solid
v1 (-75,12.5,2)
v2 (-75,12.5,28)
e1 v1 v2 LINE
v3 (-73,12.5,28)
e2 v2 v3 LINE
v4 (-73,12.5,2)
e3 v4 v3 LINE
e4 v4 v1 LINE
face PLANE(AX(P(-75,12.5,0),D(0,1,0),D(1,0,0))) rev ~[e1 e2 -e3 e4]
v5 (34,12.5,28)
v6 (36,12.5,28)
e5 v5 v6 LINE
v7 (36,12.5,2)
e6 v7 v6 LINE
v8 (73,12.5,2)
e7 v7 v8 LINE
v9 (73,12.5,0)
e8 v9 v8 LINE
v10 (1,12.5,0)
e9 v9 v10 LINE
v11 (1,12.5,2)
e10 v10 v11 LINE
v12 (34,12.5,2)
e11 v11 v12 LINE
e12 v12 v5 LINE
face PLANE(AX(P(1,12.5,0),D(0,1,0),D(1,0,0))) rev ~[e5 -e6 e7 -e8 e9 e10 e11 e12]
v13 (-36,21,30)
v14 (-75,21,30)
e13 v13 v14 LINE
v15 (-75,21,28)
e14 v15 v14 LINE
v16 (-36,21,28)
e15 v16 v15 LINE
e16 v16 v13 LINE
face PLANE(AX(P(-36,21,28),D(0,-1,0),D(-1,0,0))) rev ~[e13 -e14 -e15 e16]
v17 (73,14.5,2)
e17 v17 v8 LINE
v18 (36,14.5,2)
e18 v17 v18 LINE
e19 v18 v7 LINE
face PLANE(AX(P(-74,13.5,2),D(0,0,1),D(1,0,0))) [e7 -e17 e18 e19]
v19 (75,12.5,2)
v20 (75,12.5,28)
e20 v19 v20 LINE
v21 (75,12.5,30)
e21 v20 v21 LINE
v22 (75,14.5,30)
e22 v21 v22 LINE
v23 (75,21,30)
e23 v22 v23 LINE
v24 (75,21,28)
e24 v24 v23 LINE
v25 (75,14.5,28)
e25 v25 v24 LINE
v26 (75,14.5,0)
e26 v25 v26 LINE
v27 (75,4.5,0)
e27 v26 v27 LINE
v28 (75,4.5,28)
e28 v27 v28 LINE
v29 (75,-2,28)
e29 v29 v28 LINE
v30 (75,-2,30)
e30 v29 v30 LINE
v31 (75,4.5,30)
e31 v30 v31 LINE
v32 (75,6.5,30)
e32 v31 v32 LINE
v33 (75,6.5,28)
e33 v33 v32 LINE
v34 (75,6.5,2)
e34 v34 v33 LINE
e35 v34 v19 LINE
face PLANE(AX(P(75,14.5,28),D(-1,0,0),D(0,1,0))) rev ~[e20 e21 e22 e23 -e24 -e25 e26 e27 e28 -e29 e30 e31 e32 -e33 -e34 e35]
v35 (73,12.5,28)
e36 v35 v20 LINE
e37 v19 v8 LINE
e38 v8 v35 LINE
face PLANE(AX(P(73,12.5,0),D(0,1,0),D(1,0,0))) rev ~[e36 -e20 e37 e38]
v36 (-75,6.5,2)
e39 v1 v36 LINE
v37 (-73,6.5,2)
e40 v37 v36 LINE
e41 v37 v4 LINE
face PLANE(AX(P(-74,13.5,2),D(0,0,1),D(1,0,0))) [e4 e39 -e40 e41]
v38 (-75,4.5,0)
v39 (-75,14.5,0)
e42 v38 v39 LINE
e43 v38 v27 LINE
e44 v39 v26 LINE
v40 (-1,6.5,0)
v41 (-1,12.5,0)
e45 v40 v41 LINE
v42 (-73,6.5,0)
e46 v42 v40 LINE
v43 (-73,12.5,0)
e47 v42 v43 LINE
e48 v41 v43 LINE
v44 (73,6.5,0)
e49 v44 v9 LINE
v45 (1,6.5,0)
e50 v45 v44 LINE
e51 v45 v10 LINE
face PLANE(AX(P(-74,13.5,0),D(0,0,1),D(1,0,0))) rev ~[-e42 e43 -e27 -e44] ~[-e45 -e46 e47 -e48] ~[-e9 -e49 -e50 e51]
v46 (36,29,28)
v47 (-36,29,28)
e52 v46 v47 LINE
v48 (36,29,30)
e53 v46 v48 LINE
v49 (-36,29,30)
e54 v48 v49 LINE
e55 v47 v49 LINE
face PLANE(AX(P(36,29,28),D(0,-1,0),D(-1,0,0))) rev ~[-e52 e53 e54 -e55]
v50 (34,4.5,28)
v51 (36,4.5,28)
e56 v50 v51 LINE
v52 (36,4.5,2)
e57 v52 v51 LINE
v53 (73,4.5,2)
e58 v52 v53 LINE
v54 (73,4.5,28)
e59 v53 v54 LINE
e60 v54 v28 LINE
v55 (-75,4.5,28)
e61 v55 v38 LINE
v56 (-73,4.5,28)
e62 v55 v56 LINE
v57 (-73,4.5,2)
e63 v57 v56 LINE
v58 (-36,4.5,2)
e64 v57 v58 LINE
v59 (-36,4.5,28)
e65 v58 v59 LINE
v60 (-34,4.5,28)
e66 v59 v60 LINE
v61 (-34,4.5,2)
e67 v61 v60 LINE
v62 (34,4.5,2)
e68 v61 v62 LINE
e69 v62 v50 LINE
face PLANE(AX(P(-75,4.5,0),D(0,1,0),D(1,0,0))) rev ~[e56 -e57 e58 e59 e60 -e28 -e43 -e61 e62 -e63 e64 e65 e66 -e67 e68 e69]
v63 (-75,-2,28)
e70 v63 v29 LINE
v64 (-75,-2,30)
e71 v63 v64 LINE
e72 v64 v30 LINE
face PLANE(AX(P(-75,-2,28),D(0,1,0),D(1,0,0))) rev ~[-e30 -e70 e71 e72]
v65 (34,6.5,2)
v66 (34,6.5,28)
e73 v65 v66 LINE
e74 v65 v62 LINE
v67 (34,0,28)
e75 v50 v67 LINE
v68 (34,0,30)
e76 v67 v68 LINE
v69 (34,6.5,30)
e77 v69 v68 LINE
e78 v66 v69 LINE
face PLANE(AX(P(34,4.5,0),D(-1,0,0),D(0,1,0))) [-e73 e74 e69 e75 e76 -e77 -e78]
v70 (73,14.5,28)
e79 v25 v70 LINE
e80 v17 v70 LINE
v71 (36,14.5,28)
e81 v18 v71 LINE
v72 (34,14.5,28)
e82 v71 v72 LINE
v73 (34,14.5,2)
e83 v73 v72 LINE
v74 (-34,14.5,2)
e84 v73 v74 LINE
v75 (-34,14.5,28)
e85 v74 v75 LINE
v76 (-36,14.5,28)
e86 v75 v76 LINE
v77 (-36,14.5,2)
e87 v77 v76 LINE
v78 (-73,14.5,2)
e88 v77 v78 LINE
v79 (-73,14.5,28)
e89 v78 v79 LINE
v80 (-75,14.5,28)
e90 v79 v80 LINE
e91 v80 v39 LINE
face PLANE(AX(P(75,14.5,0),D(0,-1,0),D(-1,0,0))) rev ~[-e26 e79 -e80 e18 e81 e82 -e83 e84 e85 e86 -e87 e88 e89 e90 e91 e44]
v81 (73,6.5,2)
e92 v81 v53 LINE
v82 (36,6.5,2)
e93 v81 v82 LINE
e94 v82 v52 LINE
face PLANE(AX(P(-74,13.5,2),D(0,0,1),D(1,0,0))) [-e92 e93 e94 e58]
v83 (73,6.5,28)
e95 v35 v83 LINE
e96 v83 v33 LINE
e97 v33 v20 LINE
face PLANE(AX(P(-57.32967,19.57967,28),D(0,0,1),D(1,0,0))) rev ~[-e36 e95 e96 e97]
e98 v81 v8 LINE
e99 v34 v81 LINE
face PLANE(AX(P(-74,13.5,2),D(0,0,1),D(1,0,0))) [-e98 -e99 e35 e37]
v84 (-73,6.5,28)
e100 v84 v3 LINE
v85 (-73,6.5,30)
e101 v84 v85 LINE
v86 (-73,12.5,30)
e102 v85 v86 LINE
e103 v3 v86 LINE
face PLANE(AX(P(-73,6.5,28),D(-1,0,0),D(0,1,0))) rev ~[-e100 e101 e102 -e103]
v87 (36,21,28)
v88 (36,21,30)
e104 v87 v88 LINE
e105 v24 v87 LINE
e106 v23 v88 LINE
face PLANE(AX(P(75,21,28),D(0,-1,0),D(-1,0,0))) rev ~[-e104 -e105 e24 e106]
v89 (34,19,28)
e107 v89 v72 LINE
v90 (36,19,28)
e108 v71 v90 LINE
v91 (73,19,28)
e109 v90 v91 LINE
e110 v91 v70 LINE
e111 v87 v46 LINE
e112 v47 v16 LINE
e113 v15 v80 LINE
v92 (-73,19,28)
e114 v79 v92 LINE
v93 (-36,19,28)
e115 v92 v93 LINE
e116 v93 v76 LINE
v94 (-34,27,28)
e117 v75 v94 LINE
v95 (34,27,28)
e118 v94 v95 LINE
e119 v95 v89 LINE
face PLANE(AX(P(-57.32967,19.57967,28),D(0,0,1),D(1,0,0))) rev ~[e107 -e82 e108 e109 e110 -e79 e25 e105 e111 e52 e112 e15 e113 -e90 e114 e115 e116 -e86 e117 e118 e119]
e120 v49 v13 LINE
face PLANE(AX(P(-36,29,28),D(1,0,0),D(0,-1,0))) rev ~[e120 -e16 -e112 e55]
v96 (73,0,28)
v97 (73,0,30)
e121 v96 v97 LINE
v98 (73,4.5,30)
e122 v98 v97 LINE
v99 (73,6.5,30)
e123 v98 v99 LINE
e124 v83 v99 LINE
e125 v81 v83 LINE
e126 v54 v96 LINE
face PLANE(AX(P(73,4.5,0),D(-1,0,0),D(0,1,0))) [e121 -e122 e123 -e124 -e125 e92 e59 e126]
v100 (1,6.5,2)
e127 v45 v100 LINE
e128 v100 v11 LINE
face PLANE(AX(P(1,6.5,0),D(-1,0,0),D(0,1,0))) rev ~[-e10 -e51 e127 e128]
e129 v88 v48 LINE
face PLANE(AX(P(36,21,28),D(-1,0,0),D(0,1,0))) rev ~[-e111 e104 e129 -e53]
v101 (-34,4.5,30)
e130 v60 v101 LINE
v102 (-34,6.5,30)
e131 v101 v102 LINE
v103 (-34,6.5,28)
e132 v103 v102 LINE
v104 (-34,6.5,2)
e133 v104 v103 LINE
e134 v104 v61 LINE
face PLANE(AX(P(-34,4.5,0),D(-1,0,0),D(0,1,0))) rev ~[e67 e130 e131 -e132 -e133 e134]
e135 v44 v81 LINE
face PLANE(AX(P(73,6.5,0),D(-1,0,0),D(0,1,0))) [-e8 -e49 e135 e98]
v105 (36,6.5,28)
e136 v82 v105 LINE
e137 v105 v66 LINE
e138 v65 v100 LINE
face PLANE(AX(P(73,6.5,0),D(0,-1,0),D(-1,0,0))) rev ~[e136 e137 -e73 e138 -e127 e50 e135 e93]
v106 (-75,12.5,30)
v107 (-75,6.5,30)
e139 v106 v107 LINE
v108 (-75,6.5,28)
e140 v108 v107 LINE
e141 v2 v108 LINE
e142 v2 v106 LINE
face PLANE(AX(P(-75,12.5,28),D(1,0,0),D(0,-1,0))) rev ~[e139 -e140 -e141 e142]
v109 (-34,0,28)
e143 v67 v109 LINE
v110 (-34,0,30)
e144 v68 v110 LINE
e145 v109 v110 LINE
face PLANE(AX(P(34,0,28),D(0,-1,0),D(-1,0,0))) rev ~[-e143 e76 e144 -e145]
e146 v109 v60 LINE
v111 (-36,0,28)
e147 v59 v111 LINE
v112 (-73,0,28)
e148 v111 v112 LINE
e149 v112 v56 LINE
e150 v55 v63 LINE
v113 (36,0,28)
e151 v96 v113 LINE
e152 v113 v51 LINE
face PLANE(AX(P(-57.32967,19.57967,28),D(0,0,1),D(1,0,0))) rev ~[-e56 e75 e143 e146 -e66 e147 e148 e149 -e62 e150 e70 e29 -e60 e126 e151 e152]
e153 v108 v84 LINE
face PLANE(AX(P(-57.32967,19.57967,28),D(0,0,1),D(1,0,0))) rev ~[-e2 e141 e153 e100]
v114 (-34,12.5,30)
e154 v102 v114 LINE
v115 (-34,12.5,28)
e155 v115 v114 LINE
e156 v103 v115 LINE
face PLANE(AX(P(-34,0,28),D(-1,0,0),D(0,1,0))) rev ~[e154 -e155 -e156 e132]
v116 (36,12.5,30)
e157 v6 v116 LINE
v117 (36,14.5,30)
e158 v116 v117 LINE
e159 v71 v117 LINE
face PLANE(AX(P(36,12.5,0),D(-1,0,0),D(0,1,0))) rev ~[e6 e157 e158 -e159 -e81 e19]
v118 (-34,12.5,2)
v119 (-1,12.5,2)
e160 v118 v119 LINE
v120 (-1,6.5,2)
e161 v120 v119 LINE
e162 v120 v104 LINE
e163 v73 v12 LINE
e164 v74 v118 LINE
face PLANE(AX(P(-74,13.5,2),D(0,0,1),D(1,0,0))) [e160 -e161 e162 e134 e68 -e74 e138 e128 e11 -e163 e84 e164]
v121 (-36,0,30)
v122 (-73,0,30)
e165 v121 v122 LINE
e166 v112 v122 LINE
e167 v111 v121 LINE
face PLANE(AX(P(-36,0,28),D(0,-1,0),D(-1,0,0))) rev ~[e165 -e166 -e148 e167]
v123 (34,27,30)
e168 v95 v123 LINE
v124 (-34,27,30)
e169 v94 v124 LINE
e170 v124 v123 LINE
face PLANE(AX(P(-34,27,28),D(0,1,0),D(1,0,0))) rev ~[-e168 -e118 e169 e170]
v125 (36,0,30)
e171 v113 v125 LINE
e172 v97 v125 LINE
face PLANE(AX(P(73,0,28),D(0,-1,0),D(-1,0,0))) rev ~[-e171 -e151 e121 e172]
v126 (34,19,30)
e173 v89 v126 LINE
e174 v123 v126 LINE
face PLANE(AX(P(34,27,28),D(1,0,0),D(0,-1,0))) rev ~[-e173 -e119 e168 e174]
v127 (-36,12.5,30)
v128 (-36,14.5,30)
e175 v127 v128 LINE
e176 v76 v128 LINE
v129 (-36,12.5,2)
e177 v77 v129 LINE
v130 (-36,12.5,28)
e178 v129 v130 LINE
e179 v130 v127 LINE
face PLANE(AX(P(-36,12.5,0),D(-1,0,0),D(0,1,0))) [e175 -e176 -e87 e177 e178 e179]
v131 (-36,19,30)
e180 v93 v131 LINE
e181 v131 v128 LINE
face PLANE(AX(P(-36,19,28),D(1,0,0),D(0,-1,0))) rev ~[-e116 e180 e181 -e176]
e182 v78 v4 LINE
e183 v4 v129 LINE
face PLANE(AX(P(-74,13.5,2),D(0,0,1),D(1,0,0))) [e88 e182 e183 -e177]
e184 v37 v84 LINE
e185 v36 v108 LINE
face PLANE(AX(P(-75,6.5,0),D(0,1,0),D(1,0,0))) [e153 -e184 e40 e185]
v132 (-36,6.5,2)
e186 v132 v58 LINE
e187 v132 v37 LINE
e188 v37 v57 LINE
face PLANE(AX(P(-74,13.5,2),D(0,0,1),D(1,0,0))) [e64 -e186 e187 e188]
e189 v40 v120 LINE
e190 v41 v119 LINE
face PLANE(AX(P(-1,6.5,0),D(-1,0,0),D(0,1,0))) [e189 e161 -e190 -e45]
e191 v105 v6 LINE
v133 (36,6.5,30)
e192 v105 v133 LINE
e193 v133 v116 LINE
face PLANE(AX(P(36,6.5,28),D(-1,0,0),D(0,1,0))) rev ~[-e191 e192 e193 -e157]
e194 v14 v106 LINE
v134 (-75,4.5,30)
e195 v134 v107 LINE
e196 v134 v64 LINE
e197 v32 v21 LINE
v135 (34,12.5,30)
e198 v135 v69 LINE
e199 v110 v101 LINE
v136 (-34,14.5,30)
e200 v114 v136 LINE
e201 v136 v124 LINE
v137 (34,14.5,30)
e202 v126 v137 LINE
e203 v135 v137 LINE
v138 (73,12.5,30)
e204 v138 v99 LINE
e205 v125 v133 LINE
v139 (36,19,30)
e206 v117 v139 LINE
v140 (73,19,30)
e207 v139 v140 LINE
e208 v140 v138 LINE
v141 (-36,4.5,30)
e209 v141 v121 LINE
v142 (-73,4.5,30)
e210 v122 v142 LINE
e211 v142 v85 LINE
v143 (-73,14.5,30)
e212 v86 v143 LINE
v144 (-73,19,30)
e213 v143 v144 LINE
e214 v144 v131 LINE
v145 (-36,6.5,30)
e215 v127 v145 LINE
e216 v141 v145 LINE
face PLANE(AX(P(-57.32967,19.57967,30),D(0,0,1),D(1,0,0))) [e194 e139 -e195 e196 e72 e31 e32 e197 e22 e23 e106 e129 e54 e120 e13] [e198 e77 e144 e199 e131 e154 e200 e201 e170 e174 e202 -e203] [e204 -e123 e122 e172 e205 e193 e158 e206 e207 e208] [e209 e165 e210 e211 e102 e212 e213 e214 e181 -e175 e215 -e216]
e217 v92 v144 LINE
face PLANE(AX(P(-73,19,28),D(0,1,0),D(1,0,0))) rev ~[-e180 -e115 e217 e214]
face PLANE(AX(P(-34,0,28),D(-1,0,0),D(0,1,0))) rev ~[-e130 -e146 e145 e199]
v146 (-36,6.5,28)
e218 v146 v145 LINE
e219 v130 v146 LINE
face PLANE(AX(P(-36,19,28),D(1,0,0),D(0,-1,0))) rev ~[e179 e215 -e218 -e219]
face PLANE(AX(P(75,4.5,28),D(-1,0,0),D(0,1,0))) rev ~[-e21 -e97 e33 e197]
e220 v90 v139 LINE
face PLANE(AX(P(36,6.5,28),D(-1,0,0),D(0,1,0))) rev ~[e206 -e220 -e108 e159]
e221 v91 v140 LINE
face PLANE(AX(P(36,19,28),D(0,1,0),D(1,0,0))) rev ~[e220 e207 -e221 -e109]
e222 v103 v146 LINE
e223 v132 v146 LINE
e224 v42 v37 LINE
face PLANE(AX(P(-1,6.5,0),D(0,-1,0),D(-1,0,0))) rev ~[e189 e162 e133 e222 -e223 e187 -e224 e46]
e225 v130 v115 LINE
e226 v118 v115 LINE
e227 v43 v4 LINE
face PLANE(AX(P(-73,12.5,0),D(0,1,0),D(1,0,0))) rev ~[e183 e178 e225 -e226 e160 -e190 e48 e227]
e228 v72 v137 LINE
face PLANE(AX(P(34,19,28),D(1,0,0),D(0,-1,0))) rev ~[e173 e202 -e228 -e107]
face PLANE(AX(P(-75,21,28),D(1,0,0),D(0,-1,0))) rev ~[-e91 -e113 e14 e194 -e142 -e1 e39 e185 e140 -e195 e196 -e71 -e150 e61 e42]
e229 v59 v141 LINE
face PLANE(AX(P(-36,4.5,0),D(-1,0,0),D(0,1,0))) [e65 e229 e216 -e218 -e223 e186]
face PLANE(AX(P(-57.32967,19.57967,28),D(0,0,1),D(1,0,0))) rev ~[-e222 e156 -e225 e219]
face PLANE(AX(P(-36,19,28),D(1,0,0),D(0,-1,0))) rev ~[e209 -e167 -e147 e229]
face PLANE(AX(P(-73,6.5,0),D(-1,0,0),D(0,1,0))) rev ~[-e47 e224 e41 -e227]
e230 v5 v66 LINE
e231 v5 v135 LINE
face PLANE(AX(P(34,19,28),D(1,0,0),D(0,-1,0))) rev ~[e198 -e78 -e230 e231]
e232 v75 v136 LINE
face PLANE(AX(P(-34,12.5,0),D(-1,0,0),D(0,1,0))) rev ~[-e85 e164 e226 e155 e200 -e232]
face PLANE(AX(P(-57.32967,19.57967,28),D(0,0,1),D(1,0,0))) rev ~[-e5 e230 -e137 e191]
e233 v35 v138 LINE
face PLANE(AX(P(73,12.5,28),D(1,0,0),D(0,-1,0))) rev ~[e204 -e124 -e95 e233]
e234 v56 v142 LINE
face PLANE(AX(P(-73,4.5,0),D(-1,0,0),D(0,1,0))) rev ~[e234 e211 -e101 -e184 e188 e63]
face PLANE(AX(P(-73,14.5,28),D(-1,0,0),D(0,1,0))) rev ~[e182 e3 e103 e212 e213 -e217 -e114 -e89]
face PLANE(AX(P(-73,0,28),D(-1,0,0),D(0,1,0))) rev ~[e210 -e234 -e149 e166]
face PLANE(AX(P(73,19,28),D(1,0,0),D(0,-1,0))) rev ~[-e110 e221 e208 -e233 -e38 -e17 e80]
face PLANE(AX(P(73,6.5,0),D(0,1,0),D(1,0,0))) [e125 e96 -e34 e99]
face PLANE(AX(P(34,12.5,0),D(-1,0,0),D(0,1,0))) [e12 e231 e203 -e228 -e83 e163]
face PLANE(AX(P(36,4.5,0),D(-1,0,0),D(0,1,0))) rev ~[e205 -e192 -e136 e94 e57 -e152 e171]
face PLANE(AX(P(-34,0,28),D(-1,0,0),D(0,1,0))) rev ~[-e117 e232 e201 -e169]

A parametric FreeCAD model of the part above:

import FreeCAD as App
import Part
import Sketcher
from FreeCAD import Vector

doc = App.newDocument("Part")
params = doc.addObject("Spreadsheet::Sheet", "Params")
for row, (alias, value) in enumerate([
    ("sketch1_width", "149.999999 mm"),
    ("sketch1_width2", "72 mm"),
    ("sketch1_height", "10 mm"),
    ("sketch1_height2", "6 mm"),
    ("pad1_length", "2 mm"),
    ("sketch2_width", "2 mm"),
    ("pad2_length", "30 mm"),
    ("sketch3_width", "39 mm"),
    ("sketch3_width2", "71.999999 mm"),
    ("sketch3_width3", "37 mm"),
    ("sketch3_width4", "68 mm"),
    ("sketch3_height", "8 mm"),
    ("pad3_length", "2 mm"),
], start=1):
    params.set(f"A{row}", alias)
    params.set(f"B{row}", "=" + value)
    params.setAlias(f"B{row}", alias)

body = doc.addObject("PartDesign::Body", "Body")

sketch1 = body.newObject("Sketcher::SketchObject", "Sketch")
sketch1.AttachmentSupport = (doc.getObject("XY_Plane"), [""])
sketch1.MapMode = "FlatFace"
sketch1.addGeometry(Part.LineSegment(Vector(-75, 4.5, 0), Vector(75, 4.5, 0)), False)
sketch1.addGeometry(Part.LineSegment(Vector(75, 4.5, 0), Vector(75, 14.5, 0)), False)
sketch1.addGeometry(Part.LineSegment(Vector(75, 14.5, 0), Vector(-75, 14.5, 0)), False)
sketch1.addGeometry(Part.LineSegment(Vector(-75, 14.5, 0), Vector(-75, 4.5, 0)), False)
sketch1.addGeometry(Part.LineSegment(Vector(-1, 6.5, 0), Vector(-73, 6.5, 0)), False)
sketch1.addGeometry(Part.LineSegment(Vector(-73, 6.5, 0), Vector(-73, 12.5, 0)), False)
sketch1.addGeometry(Part.LineSegment(Vector(-73, 12.5, 0), Vector(-1, 12.5, 0)), False)
sketch1.addGeometry(Part.LineSegment(Vector(-1, 12.5, 0), Vector(-1, 6.5, 0)), False)
sketch1.addGeometry(Part.LineSegment(Vector(73, 12.5, 0), Vector(73, 6.5, 0)), False)
sketch1.addGeometry(Part.LineSegment(Vector(73, 6.5, 0), Vector(1, 6.5, 0)), False)
sketch1.addGeometry(Part.LineSegment(Vector(1, 6.5, 0), Vector(1, 12.5, 0)), False)
sketch1.addGeometry(Part.LineSegment(Vector(1, 12.5, 0), Vector(73, 12.5, 0)), False)
sketch1.addConstraint(Sketcher.Constraint("Coincident", 0, 2, 1, 1))
sketch1.addConstraint(Sketcher.Constraint("Coincident", 1, 2, 2, 1))
sketch1.addConstraint(Sketcher.Constraint("Coincident", 2, 2, 3, 1))
sketch1.addConstraint(Sketcher.Constraint("Coincident", 3, 2, 0, 1))
sketch1.addConstraint(Sketcher.Constraint("Coincident", 4, 2, 5, 1))
sketch1.addConstraint(Sketcher.Constraint("Coincident", 5, 2, 6, 1))
sketch1.addConstraint(Sketcher.Constraint("Coincident", 6, 2, 7, 1))
sketch1.addConstraint(Sketcher.Constraint("Coincident", 7, 2, 4, 1))
sketch1.addConstraint(Sketcher.Constraint("Coincident", 8, 2, 9, 1))
sketch1.addConstraint(Sketcher.Constraint("Coincident", 9, 2, 10, 1))
sketch1.addConstraint(Sketcher.Constraint("Coincident", 10, 2, 11, 1))
sketch1.addConstraint(Sketcher.Constraint("Coincident", 11, 2, 8, 1))
sketch1.addConstraint(Sketcher.Constraint("Horizontal", 0))
sketch1.addConstraint(Sketcher.Constraint("Vertical", 1))
sketch1.addConstraint(Sketcher.Constraint("Horizontal", 2))
sketch1.addConstraint(Sketcher.Constraint("Vertical", 3))
sketch1.addConstraint(Sketcher.Constraint("Horizontal", 4))
sketch1.addConstraint(Sketcher.Constraint("Vertical", 5))
sketch1.addConstraint(Sketcher.Constraint("Horizontal", 6))
sketch1.addConstraint(Sketcher.Constraint("Vertical", 7))
sketch1.addConstraint(Sketcher.Constraint("Vertical", 8))
sketch1.addConstraint(Sketcher.Constraint("Horizontal", 9))
sketch1.addConstraint(Sketcher.Constraint("Vertical", 10))
sketch1.addConstraint(Sketcher.Constraint("Horizontal", 11))
sketch1.addConstraint(Sketcher.Constraint("Symmetric", 4, 2, 8, 2, -2))
sketch1.addConstraint(Sketcher.Constraint("Symmetric", 6, 2, 10, 2, -2))
sketch1.addConstraint(Sketcher.Constraint("DistanceX", 0, 1, 0, 2, 149.999999))
sketch1.addConstraint(Sketcher.Constraint("DistanceX", 4, 2, 4, 1, 72.0))
sketch1.addConstraint(Sketcher.Constraint("DistanceY", 1, 1, 1, 2, 10.0))
sketch1.addConstraint(Sketcher.Constraint("DistanceY", 5, 1, 5, 2, 6.0))
sketch1.addConstraint(Sketcher.Constraint("DistanceX", -1, 1, 0, 2, 75.0))
sketch1.addConstraint(Sketcher.Constraint("DistanceX", 4, 2, -1, 1, 73.0))
sketch1.addConstraint(Sketcher.Constraint("DistanceY", 3, 2, 4, 2, 2.0))
sketch1.addConstraint(Sketcher.Constraint("DistanceY", -1, 1, 0, 2, 4.5))
sketch1.setExpression("Constraints[26]", "Params.sketch1_width")
sketch1.setExpression("Constraints[27]", "Params.sketch1_width2")
sketch1.setExpression("Constraints[28]", "Params.sketch1_height")
sketch1.setExpression("Constraints[29]", "Params.sketch1_height2")
pad1 = body.newObject("PartDesign::Pad", "Pad")
pad1.Profile = sketch1
pad1.setExpression("Length", "Params.pad1_length")

sketch2 = body.newObject("Sketcher::SketchObject", "Sketch001")
sketch2.AttachmentSupport = (doc.getObject("XY_Plane"), [""])
sketch2.MapMode = "FlatFace"
sketch2.addGeometry(Part.LineSegment(Vector(-75, 6.5, 0), Vector(-75, 4.5, 0)), False)
sketch2.addGeometry(Part.LineSegment(Vector(-75, 4.5, 0), Vector(-73, 4.5, 0)), False)
sketch2.addGeometry(Part.LineSegment(Vector(-73, 4.5, 0), Vector(-73, 6.5, 0)), False)
sketch2.addGeometry(Part.LineSegment(Vector(-73, 6.5, 0), Vector(-75, 6.5, 0)), False)
sketch2.addGeometry(Part.LineSegment(Vector(-75, 14.5, 0), Vector(-75, 12.5, 0)), False)
sketch2.addGeometry(Part.LineSegment(Vector(-75, 12.5, 0), Vector(-73, 12.5, 0)), False)
sketch2.addGeometry(Part.LineSegment(Vector(-73, 12.5, 0), Vector(-73, 14.5, 0)), False)
sketch2.addGeometry(Part.LineSegment(Vector(-73, 14.5, 0), Vector(-75, 14.5, 0)), False)
sketch2.addGeometry(Part.LineSegment(Vector(-36, 6.5, 0), Vector(-36, 4.5, 0)), False)
sketch2.addGeometry(Part.LineSegment(Vector(-36, 4.5, 0), Vector(-34, 4.5, 0)), False)
sketch2.addGeometry(Part.LineSegment(Vector(-34, 4.5, 0), Vector(-34, 6.5, 0)), False)
sketch2.addGeometry(Part.LineSegment(Vector(-34, 6.5, 0), Vector(-36, 6.5, 0)), False)
sketch2.addGeometry(Part.LineSegment(Vector(-36, 14.5, 0), Vector(-36, 12.5, 0)), False)
sketch2.addGeometry(Part.LineSegment(Vector(-36, 12.5, 0), Vector(-34, 12.5, 0)), False)
sketch2.addGeometry(Part.LineSegment(Vector(-34, 12.5, 0), Vector(-34, 14.5, 0)), False)
sketch2.addGeometry(Part.LineSegment(Vector(-34, 14.5, 0), Vector(-36, 14.5, 0)), False)
sketch2.addGeometry(Part.LineSegment(Vector(34, 6.5, 0), Vector(34, 4.5, 0)), False)
sketch2.addGeometry(Part.LineSegment(Vector(34, 4.5, 0), Vector(36, 4.5, 0)), False)
sketch2.addGeometry(Part.LineSegment(Vector(36, 4.5, 0), Vector(36, 6.5, 0)), False)
sketch2.addGeometry(Part.LineSegment(Vector(36, 6.5, 0), Vector(34, 6.5, 0)), False)
sketch2.addGeometry(Part.LineSegment(Vector(34, 14.5, 0), Vector(34, 12.5, 0)), False)
sketch2.addGeometry(Part.LineSegment(Vector(34, 12.5, 0), Vector(36, 12.5, 0)), False)
sketch2.addGeometry(Part.LineSegment(Vector(36, 12.5, 0), Vector(36, 14.5, 0)), False)
sketch2.addGeometry(Part.LineSegment(Vector(36, 14.5, 0), Vector(34, 14.5, 0)), False)
sketch2.addGeometry(Part.LineSegment(Vector(73, 6.5, 0), Vector(73, 4.5, 0)), False)
sketch2.addGeometry(Part.LineSegment(Vector(73, 4.5, 0), Vector(75, 4.5, 0)), False)
sketch2.addGeometry(Part.LineSegment(Vector(75, 4.5, 0), Vector(75, 6.5, 0)), False)
sketch2.addGeometry(Part.LineSegment(Vector(75, 6.5, 0), Vector(73, 6.5, 0)), False)
sketch2.addGeometry(Part.LineSegment(Vector(73, 14.5, 0), Vector(73, 12.5, 0)), False)
sketch2.addGeometry(Part.LineSegment(Vector(73, 12.5, 0), Vector(75, 12.5, 0)), False)
sketch2.addGeometry(Part.LineSegment(Vector(75, 12.5, 0), Vector(75, 14.5, 0)), False)
sketch2.addGeometry(Part.LineSegment(Vector(75, 14.5, 0), Vector(73, 14.5, 0)), False)
sketch2.addConstraint(Sketcher.Constraint("Coincident", 0, 2, 1, 1))
sketch2.addConstraint(Sketcher.Constraint("Coincident", 1, 2, 2, 1))
sketch2.addConstraint(Sketcher.Constraint("Coincident", 2, 2, 3, 1))
sketch2.addConstraint(Sketcher.Constraint("Coincident", 3, 2, 0, 1))
sketch2.addConstraint(Sketcher.Constraint("Coincident", 4, 2, 5, 1))
sketch2.addConstraint(Sketcher.Constraint("Coincident", 5, 2, 6, 1))
sketch2.addConstraint(Sketcher.Constraint("Coincident", 6, 2, 7, 1))
sketch2.addConstraint(Sketcher.Constraint("Coincident", 7, 2, 4, 1))
sketch2.addConstraint(Sketcher.Constraint("Coincident", 8, 2, 9, 1))
sketch2.addConstraint(Sketcher.Constraint("Coincident", 9, 2, 10, 1))
sketch2.addConstraint(Sketcher.Constraint("Coincident", 10, 2, 11, 1))
sketch2.addConstraint(Sketcher.Constraint("Coincident", 11, 2, 8, 1))
sketch2.addConstraint(Sketcher.Constraint("Coincident", 12, 2, 13, 1))
sketch2.addConstraint(Sketcher.Constraint("Coincident", 13, 2, 14, 1))
sketch2.addConstraint(Sketcher.Constraint("Coincident", 14, 2, 15, 1))
sketch2.addConstraint(Sketcher.Constraint("Coincident", 15, 2, 12, 1))
sketch2.addConstraint(Sketcher.Constraint("Coincident", 16, 2, 17, 1))
sketch2.addConstraint(Sketcher.Constraint("Coincident", 17, 2, 18, 1))
sketch2.addConstraint(Sketcher.Constraint("Coincident", 18, 2, 19, 1))
sketch2.addConstraint(Sketcher.Constraint("Coincident", 19, 2, 16, 1))
sketch2.addConstraint(Sketcher.Constraint("Coincident", 20, 2, 21, 1))
sketch2.addConstraint(Sketcher.Constraint("Coincident", 21, 2, 22, 1))
sketch2.addConstraint(Sketcher.Constraint("Coincident", 22, 2, 23, 1))
sketch2.addConstraint(Sketcher.Constraint("Coincident", 23, 2, 20, 1))
sketch2.addConstraint(Sketcher.Constraint("Coincident", 24, 2, 25, 1))
sketch2.addConstraint(Sketcher.Constraint("Coincident", 25, 2, 26, 1))
sketch2.addConstraint(Sketcher.Constraint("Coincident", 26, 2, 27, 1))
sketch2.addConstraint(Sketcher.Constraint("Coincident", 27, 2, 24, 1))
sketch2.addConstraint(Sketcher.Constraint("Coincident", 28, 2, 29, 1))
sketch2.addConstraint(Sketcher.Constraint("Coincident", 29, 2, 30, 1))
sketch2.addConstraint(Sketcher.Constraint("Coincident", 30, 2, 31, 1))
sketch2.addConstraint(Sketcher.Constraint("Coincident", 31, 2, 28, 1))
sketch2.addConstraint(Sketcher.Constraint("Vertical", 0))
sketch2.addConstraint(Sketcher.Constraint("Horizontal", 1))
sketch2.addConstraint(Sketcher.Constraint("Vertical", 2))
sketch2.addConstraint(Sketcher.Constraint("Horizontal", 3))
sketch2.addConstraint(Sketcher.Constraint("Vertical", 4))
sketch2.addConstraint(Sketcher.Constraint("Horizontal", 5))
sketch2.addConstraint(Sketcher.Constraint("Vertical", 6))
sketch2.addConstraint(Sketcher.Constraint("Horizontal", 7))
sketch2.addConstraint(Sketcher.Constraint("Vertical", 8))
sketch2.addConstraint(Sketcher.Constraint("Horizontal", 9))
sketch2.addConstraint(Sketcher.Constraint("Vertical", 10))
sketch2.addConstraint(Sketcher.Constraint("Horizontal", 11))
sketch2.addConstraint(Sketcher.Constraint("Vertical", 12))
sketch2.addConstraint(Sketcher.Constraint("Horizontal", 13))
sketch2.addConstraint(Sketcher.Constraint("Vertical", 14))
sketch2.addConstraint(Sketcher.Constraint("Horizontal", 15))
sketch2.addConstraint(Sketcher.Constraint("Vertical", 16))
sketch2.addConstraint(Sketcher.Constraint("Horizontal", 17))
sketch2.addConstraint(Sketcher.Constraint("Vertical", 18))
sketch2.addConstraint(Sketcher.Constraint("Horizontal", 19))
sketch2.addConstraint(Sketcher.Constraint("Vertical", 20))
sketch2.addConstraint(Sketcher.Constraint("Horizontal", 21))
sketch2.addConstraint(Sketcher.Constraint("Vertical", 22))
sketch2.addConstraint(Sketcher.Constraint("Horizontal", 23))
sketch2.addConstraint(Sketcher.Constraint("Vertical", 24))
sketch2.addConstraint(Sketcher.Constraint("Horizontal", 25))
sketch2.addConstraint(Sketcher.Constraint("Vertical", 26))
sketch2.addConstraint(Sketcher.Constraint("Horizontal", 27))
sketch2.addConstraint(Sketcher.Constraint("Vertical", 28))
sketch2.addConstraint(Sketcher.Constraint("Horizontal", 29))
sketch2.addConstraint(Sketcher.Constraint("Vertical", 30))
sketch2.addConstraint(Sketcher.Constraint("Horizontal", 31))
sketch2.addConstraint(Sketcher.Constraint("Symmetric", 9, 2, 16, 2, -2))
sketch2.addConstraint(Sketcher.Constraint("Symmetric", 11, 2, 18, 2, -2))
sketch2.addConstraint(Sketcher.Constraint("Symmetric", 13, 2, 20, 2, -2))
sketch2.addConstraint(Sketcher.Constraint("Symmetric", 15, 2, 22, 2, -2))
sketch2.addConstraint(Sketcher.Constraint("Symmetric", 1, 2, 24, 2, -2))
sketch2.addConstraint(Sketcher.Constraint("Symmetric", 3, 2, 26, 2, -2))
sketch2.addConstraint(Sketcher.Constraint("Symmetric", 5, 2, 28, 2, -2))
sketch2.addConstraint(Sketcher.Constraint("Symmetric", 7, 2, 30, 2, -2))
sketch2.addConstraint(Sketcher.Constraint("Horizontal", 1, 2, 8, 2))
sketch2.addConstraint(Sketcher.Constraint("Horizontal", 3, 2, 10, 2))
sketch2.addConstraint(Sketcher.Constraint("Horizontal", 5, 2, 12, 2))
sketch2.addConstraint(Sketcher.Constraint("Horizontal", 7, 2, 14, 2))
sketch2.addConstraint(Sketcher.Constraint("Vertical", 3, 2, 4, 2))
sketch2.addConstraint(Sketcher.Constraint("Vertical", 2, 2, 5, 2))
sketch2.addConstraint(Sketcher.Constraint("Vertical", 11, 2, 12, 2))
sketch2.addConstraint(Sketcher.Constraint("Vertical", 10, 2, 13, 2))
sketch2.addConstraint(Sketcher.Constraint("Equal", 7, 9))
sketch2.addConstraint(Sketcher.Constraint("Equal", 31, 0))
sketch2.addConstraint(Sketcher.Constraint("Equal", 2, 4))
sketch2.addConstraint(Sketcher.Constraint("DistanceX", 1, 1, 1, 2, 2.0))
sketch2.addConstraint(Sketcher.Constraint("DistanceX", 0, 2, -1, 1, 75.0))
sketch2.addConstraint(Sketcher.Constraint("DistanceX", 8, 2, -1, 1, 36.0))
sketch2.addConstraint(Sketcher.Constraint("DistanceY", 3, 2, 4, 2, 6.0))
sketch2.addConstraint(Sketcher.Constraint("DistanceY", -1, 1, 0, 2, 4.5))
sketch2.setExpression("Constraints[83]", "Params.sketch2_width")
pad2 = body.newObject("PartDesign::Pad", "Pad001")
pad2.Profile = sketch2
pad2.setExpression("Length", "Params.pad2_length")

sketch3 = body.newObject("Sketcher::SketchObject", "Sketch002")
sketch3.AttachmentSupport = (doc.getObject("XY_Plane"), [""])
sketch3.MapMode = "FlatFace"
sketch3.AttachmentOffset = App.Placement(Vector(0, 0, 28), App.Rotation())
sketch3.addGeometry(Part.LineSegment(Vector(75, 14.5, 0), Vector(75, 21, 0)), False)
sketch3.addGeometry(Part.LineSegment(Vector(75, 21, 0), Vector(36, 21, 0)), False)
sketch3.addGeometry(Part.LineSegment(Vector(36, 21, 0), Vector(36, 29, 0)), False)
sketch3.addGeometry(Part.LineSegment(Vector(36, 29, 0), Vector(-36, 29, 0)), False)
sketch3.addGeometry(Part.LineSegment(Vector(-36, 29, 0), Vector(-36, 21, 0)), False)
sketch3.addGeometry(Part.LineSegment(Vector(-36, 21, 0), Vector(-75, 21, 0)), False)
sketch3.addGeometry(Part.LineSegment(Vector(-75, 21, 0), Vector(-75, 14.5, 0)), False)
sketch3.addGeometry(Part.LineSegment(Vector(-75, 14.5, 0), Vector(-75, 12.5, 0)), False)
sketch3.addGeometry(Part.LineSegment(Vector(-75, 12.5, 0), Vector(-75, 4.5, 0)), False)
sketch3.addGeometry(Part.LineSegment(Vector(-75, 4.5, 0), Vector(-75, -2, 0)), False)
sketch3.addGeometry(Part.LineSegment(Vector(-75, -2, 0), Vector(75, -2, 0)), False)
sketch3.addGeometry(Part.LineSegment(Vector(75, -2, 0), Vector(75, 4.5, 0)), False)
sketch3.addGeometry(Part.LineSegment(Vector(75, 4.5, 0), Vector(75, 12.5, 0)), False)
sketch3.addGeometry(Part.LineSegment(Vector(75, 12.5, 0), Vector(75, 14.5, 0)), False)
sketch3.addGeometry(Part.LineSegment(Vector(-73, 14.5, 0), Vector(-73, 19, 0)), False)
sketch3.addGeometry(Part.LineSegment(Vector(-73, 19, 0), Vector(-36, 19, 0)), False)
sketch3.addGeometry(Part.LineSegment(Vector(-36, 19, 0), Vector(-36, 0, 0)), False)
sketch3.addGeometry(Part.LineSegment(Vector(-36, 0, 0), Vector(-73, 0, 0)), False)
sketch3.addGeometry(Part.LineSegment(Vector(-73, 0, 0), Vector(-73, 6.5, 0)), False)
sketch3.addGeometry(Part.LineSegment(Vector(-73, 6.5, 0), Vector(-73, 14.5, 0)), False)
sketch3.addGeometry(Part.LineSegment(Vector(-34, 27, 0), Vector(34, 27, 0)), False)
sketch3.addGeometry(Part.LineSegment(Vector(34, 27, 0), Vector(34, 19, 0)), False)
sketch3.addGeometry(Part.LineSegment(Vector(34, 19, 0), Vector(34, 6.5, 0)), False)
sketch3.addGeometry(Part.LineSegment(Vector(34, 6.5, 0), Vector(34, 0, 0)), False)
sketch3.addGeometry(Part.LineSegment(Vector(34, 0, 0), Vector(-34, 0, 0)), False)
sketch3.addGeometry(Part.LineSegment(Vector(-34, 0, 0), Vector(-34, 27, 0)), False)
sketch3.addGeometry(Part.LineSegment(Vector(36, 6.5, 0), Vector(36, 19, 0)), False)
sketch3.addGeometry(Part.LineSegment(Vector(36, 19, 0), Vector(73, 19, 0)), False)
sketch3.addGeometry(Part.LineSegment(Vector(73, 19, 0), Vector(73, 14.5, 0)), False)
sketch3.addGeometry(Part.LineSegment(Vector(73, 14.5, 0), Vector(73, 12.5, 0)), False)
sketch3.addGeometry(Part.LineSegment(Vector(73, 12.5, 0), Vector(73, 4.5, 0)), False)
sketch3.addGeometry(Part.LineSegment(Vector(73, 4.5, 0), Vector(73, 0, 0)), False)
sketch3.addGeometry(Part.LineSegment(Vector(73, 0, 0), Vector(36, 0, 0)), False)
sketch3.addGeometry(Part.LineSegment(Vector(36, 0, 0), Vector(36, 6.5, 0)), False)
sketch3.addConstraint(Sketcher.Constraint("Coincident", 0, 2, 1, 1))
sketch3.addConstraint(Sketcher.Constraint("Coincident", 1, 2, 2, 1))
sketch3.addConstraint(Sketcher.Constraint("Coincident", 2, 2, 3, 1))
sketch3.addConstraint(Sketcher.Constraint("Coincident", 3, 2, 4, 1))
sketch3.addConstraint(Sketcher.Constraint("Coincident", 4, 2, 5, 1))
sketch3.addConstraint(Sketcher.Constraint("Coincident", 5, 2, 6, 1))
sketch3.addConstraint(Sketcher.Constraint("Coincident", 6, 2, 7, 1))
sketch3.addConstraint(Sketcher.Constraint("Coincident", 7, 2, 8, 1))
sketch3.addConstraint(Sketcher.Constraint("Coincident", 8, 2, 9, 1))
sketch3.addConstraint(Sketcher.Constraint("Coincident", 9, 2, 10, 1))
sketch3.addConstraint(Sketcher.Constraint("Coincident", 10, 2, 11, 1))
sketch3.addConstraint(Sketcher.Constraint("Coincident", 11, 2, 12, 1))
sketch3.addConstraint(Sketcher.Constraint("Coincident", 12, 2, 13, 1))
sketch3.addConstraint(Sketcher.Constraint("Coincident", 13, 2, 0, 1))
sketch3.addConstraint(Sketcher.Constraint("Coincident", 14, 2, 15, 1))
sketch3.addConstraint(Sketcher.Constraint("Coincident", 15, 2, 16, 1))
sketch3.addConstraint(Sketcher.Constraint("Coincident", 16, 2, 17, 1))
sketch3.addConstraint(Sketcher.Constraint("Coincident", 17, 2, 18, 1))
sketch3.addConstraint(Sketcher.Constraint("Coincident", 18, 2, 19, 1))
sketch3.addConstraint(Sketcher.Constraint("Coincident", 19, 2, 14, 1))
sketch3.addConstraint(Sketcher.Constraint("Coincident", 20, 2, 21, 1))
sketch3.addConstraint(Sketcher.Constraint("Coincident", 21, 2, 22, 1))
sketch3.addConstraint(Sketcher.Constraint("Coincident", 22, 2, 23, 1))
sketch3.addConstraint(Sketcher.Constraint("Coincident", 23, 2, 24, 1))
sketch3.addConstraint(Sketcher.Constraint("Coincident", 24, 2, 25, 1))
sketch3.addConstraint(Sketcher.Constraint("Coincident", 25, 2, 20, 1))
sketch3.addConstraint(Sketcher.Constraint("Coincident", 26, 2, 27, 1))
sketch3.addConstraint(Sketcher.Constraint("Coincident", 27, 2, 28, 1))
sketch3.addConstraint(Sketcher.Constraint("Coincident", 28, 2, 29, 1))
sketch3.addConstraint(Sketcher.Constraint("Coincident", 29, 2, 30, 1))
sketch3.addConstraint(Sketcher.Constraint("Coincident", 30, 2, 31, 1))
sketch3.addConstraint(Sketcher.Constraint("Coincident", 31, 2, 32, 1))
sketch3.addConstraint(Sketcher.Constraint("Coincident", 32, 2, 33, 1))
sketch3.addConstraint(Sketcher.Constraint("Coincident", 33, 2, 26, 1))
sketch3.addConstraint(Sketcher.Constraint("Vertical", 0))
sketch3.addConstraint(Sketcher.Constraint("Horizontal", 1))
sketch3.addConstraint(Sketcher.Constraint("Vertical", 2))
sketch3.addConstraint(Sketcher.Constraint("Horizontal", 3))
sketch3.addConstraint(Sketcher.Constraint("Vertical", 4))
sketch3.addConstraint(Sketcher.Constraint("Horizontal", 5))
sketch3.addConstraint(Sketcher.Constraint("Vertical", 6))
sketch3.addConstraint(Sketcher.Constraint("Vertical", 7))
sketch3.addConstraint(Sketcher.Constraint("Vertical", 8))
sketch3.addConstraint(Sketcher.Constraint("Vertical", 9))
sketch3.addConstraint(Sketcher.Constraint("Horizontal", 10))
sketch3.addConstraint(Sketcher.Constraint("Vertical", 11))
sketch3.addConstraint(Sketcher.Constraint("Vertical", 12))
sketch3.addConstraint(Sketcher.Constraint("Vertical", 13))
sketch3.addConstraint(Sketcher.Constraint("Vertical", 14))
sketch3.addConstraint(Sketcher.Constraint("Horizontal", 15))
sketch3.addConstraint(Sketcher.Constraint("Vertical", 16))
sketch3.addConstraint(Sketcher.Constraint("Horizontal", 17))
sketch3.addConstraint(Sketcher.Constraint("Vertical", 18))
sketch3.addConstraint(Sketcher.Constraint("Vertical", 19))
sketch3.addConstraint(Sketcher.Constraint("Horizontal", 20))
sketch3.addConstraint(Sketcher.Constraint("Vertical", 21))
sketch3.addConstraint(Sketcher.Constraint("Vertical", 22))
sketch3.addConstraint(Sketcher.Constraint("Vertical", 23))
sketch3.addConstraint(Sketcher.Constraint("Horizontal", 24))
sketch3.addConstraint(Sketcher.Constraint("Vertical", 25))
sketch3.addConstraint(Sketcher.Constraint("Vertical", 26))
sketch3.addConstraint(Sketcher.Constraint("Horizontal", 27))
sketch3.addConstraint(Sketcher.Constraint("Vertical", 28))
sketch3.addConstraint(Sketcher.Constraint("Vertical", 29))
sketch3.addConstraint(Sketcher.Constraint("Vertical", 30))
sketch3.addConstraint(Sketcher.Constraint("Vertical", 31))
sketch3.addConstraint(Sketcher.Constraint("Horizontal", 32))
sketch3.addConstraint(Sketcher.Constraint("Vertical", 33))
sketch3.addConstraint(Sketcher.Constraint("Symmetric", 23, 2, 24, 2, -1, 1))
sketch3.addConstraint(Sketcher.Constraint("Symmetric", 17, 2, 31, 2, -1, 1))
sketch3.addConstraint(Sketcher.Constraint("Symmetric", 1, 2, 4, 2, -2))
sketch3.addConstraint(Sketcher.Constraint("Symmetric", 8, 2, 11, 2, -2))
sketch3.addConstraint(Sketcher.Constraint("Symmetric", 15, 2, 26, 2, -2))
sketch3.addConstraint(Sketcher.Constraint("PointOnObject", 16, 2, -1))
sketch3.addConstraint(Sketcher.Constraint("Horizontal", 7, 2, 12, 2))
sketch3.addConstraint(Sketcher.Constraint("Horizontal", 6, 2, 13, 2))
sketch3.addConstraint(Sketcher.Constraint("Horizontal", 13, 2, 19, 2))
sketch3.addConstraint(Sketcher.Constraint("Horizontal", 15, 2, 21, 2))
sketch3.addConstraint(Sketcher.Constraint("Horizontal", 18, 2, 22, 2))
sketch3.addConstraint(Sketcher.Constraint("Horizontal", 19, 2, 28, 2))
sketch3.addConstraint(Sketcher.Constraint("Horizontal", 12, 2, 29, 2))
sketch3.addConstraint(Sketcher.Constraint("Horizontal", 11, 2, 30, 2))
sketch3.addConstraint(Sketcher.Constraint("Horizontal", 22, 2, 33, 2))
sketch3.addConstraint(Sketcher.Constraint("Vertical", 4, 2, 15, 2))
sketch3.addConstraint(Sketcher.Constraint("Equal", 4, 8))
sketch3.addConstraint(Sketcher.Constraint("Equal", 6, 9))
sketch3.addConstraint(Sketcher.Constraint("Equal", 11, 18))
sketch3.addConstraint(Sketcher.Constraint("Equal", 12, 19))
sketch3.addConstraint(Sketcher.Constraint("Equal", 19, 21))
sketch3.addConstraint(Sketcher.Constraint("Equal", 28, 31))
sketch3.addConstraint(Sketcher.Constraint("DistanceX", 1, 2, 1, 1, 39.0))
sketch3.addConstraint(Sketcher.Constraint("DistanceX", 3, 2, 3, 1, 71.999999))
sketch3.addConstraint(Sketcher.Constraint("DistanceX", 15, 1, 15, 2, 37.0))
sketch3.addConstraint(Sketcher.Constraint("DistanceX", 20, 1, 20, 2, 68.0))
sketch3.addConstraint(Sketcher.Constraint("DistanceY", 2, 1, 2, 2, 8.0))
sketch3.addConstraint(Sketcher.Constraint("DistanceY", 7, 2, 7, 1, 2.0))
sketch3.addConstraint(Sketcher.Constraint("DistanceY", 16, 2, 16, 1, 19.0))
sketch3.setExpression("Constraints[90]", "Params.sketch3_width")
sketch3.setExpression("Constraints[91]", "Params.sketch3_width2")
sketch3.setExpression("Constraints[92]", "Params.sketch3_width3")
sketch3.setExpression("Constraints[93]", "Params.sketch3_width4")
sketch3.setExpression("Constraints[94]", "Params.sketch3_height")
pad3 = body.newObject("PartDesign::Pad", "Pad002")
pad3.Profile = sketch3
pad3.setExpression("Length", "Params.pad3_length")

doc.recompute()
